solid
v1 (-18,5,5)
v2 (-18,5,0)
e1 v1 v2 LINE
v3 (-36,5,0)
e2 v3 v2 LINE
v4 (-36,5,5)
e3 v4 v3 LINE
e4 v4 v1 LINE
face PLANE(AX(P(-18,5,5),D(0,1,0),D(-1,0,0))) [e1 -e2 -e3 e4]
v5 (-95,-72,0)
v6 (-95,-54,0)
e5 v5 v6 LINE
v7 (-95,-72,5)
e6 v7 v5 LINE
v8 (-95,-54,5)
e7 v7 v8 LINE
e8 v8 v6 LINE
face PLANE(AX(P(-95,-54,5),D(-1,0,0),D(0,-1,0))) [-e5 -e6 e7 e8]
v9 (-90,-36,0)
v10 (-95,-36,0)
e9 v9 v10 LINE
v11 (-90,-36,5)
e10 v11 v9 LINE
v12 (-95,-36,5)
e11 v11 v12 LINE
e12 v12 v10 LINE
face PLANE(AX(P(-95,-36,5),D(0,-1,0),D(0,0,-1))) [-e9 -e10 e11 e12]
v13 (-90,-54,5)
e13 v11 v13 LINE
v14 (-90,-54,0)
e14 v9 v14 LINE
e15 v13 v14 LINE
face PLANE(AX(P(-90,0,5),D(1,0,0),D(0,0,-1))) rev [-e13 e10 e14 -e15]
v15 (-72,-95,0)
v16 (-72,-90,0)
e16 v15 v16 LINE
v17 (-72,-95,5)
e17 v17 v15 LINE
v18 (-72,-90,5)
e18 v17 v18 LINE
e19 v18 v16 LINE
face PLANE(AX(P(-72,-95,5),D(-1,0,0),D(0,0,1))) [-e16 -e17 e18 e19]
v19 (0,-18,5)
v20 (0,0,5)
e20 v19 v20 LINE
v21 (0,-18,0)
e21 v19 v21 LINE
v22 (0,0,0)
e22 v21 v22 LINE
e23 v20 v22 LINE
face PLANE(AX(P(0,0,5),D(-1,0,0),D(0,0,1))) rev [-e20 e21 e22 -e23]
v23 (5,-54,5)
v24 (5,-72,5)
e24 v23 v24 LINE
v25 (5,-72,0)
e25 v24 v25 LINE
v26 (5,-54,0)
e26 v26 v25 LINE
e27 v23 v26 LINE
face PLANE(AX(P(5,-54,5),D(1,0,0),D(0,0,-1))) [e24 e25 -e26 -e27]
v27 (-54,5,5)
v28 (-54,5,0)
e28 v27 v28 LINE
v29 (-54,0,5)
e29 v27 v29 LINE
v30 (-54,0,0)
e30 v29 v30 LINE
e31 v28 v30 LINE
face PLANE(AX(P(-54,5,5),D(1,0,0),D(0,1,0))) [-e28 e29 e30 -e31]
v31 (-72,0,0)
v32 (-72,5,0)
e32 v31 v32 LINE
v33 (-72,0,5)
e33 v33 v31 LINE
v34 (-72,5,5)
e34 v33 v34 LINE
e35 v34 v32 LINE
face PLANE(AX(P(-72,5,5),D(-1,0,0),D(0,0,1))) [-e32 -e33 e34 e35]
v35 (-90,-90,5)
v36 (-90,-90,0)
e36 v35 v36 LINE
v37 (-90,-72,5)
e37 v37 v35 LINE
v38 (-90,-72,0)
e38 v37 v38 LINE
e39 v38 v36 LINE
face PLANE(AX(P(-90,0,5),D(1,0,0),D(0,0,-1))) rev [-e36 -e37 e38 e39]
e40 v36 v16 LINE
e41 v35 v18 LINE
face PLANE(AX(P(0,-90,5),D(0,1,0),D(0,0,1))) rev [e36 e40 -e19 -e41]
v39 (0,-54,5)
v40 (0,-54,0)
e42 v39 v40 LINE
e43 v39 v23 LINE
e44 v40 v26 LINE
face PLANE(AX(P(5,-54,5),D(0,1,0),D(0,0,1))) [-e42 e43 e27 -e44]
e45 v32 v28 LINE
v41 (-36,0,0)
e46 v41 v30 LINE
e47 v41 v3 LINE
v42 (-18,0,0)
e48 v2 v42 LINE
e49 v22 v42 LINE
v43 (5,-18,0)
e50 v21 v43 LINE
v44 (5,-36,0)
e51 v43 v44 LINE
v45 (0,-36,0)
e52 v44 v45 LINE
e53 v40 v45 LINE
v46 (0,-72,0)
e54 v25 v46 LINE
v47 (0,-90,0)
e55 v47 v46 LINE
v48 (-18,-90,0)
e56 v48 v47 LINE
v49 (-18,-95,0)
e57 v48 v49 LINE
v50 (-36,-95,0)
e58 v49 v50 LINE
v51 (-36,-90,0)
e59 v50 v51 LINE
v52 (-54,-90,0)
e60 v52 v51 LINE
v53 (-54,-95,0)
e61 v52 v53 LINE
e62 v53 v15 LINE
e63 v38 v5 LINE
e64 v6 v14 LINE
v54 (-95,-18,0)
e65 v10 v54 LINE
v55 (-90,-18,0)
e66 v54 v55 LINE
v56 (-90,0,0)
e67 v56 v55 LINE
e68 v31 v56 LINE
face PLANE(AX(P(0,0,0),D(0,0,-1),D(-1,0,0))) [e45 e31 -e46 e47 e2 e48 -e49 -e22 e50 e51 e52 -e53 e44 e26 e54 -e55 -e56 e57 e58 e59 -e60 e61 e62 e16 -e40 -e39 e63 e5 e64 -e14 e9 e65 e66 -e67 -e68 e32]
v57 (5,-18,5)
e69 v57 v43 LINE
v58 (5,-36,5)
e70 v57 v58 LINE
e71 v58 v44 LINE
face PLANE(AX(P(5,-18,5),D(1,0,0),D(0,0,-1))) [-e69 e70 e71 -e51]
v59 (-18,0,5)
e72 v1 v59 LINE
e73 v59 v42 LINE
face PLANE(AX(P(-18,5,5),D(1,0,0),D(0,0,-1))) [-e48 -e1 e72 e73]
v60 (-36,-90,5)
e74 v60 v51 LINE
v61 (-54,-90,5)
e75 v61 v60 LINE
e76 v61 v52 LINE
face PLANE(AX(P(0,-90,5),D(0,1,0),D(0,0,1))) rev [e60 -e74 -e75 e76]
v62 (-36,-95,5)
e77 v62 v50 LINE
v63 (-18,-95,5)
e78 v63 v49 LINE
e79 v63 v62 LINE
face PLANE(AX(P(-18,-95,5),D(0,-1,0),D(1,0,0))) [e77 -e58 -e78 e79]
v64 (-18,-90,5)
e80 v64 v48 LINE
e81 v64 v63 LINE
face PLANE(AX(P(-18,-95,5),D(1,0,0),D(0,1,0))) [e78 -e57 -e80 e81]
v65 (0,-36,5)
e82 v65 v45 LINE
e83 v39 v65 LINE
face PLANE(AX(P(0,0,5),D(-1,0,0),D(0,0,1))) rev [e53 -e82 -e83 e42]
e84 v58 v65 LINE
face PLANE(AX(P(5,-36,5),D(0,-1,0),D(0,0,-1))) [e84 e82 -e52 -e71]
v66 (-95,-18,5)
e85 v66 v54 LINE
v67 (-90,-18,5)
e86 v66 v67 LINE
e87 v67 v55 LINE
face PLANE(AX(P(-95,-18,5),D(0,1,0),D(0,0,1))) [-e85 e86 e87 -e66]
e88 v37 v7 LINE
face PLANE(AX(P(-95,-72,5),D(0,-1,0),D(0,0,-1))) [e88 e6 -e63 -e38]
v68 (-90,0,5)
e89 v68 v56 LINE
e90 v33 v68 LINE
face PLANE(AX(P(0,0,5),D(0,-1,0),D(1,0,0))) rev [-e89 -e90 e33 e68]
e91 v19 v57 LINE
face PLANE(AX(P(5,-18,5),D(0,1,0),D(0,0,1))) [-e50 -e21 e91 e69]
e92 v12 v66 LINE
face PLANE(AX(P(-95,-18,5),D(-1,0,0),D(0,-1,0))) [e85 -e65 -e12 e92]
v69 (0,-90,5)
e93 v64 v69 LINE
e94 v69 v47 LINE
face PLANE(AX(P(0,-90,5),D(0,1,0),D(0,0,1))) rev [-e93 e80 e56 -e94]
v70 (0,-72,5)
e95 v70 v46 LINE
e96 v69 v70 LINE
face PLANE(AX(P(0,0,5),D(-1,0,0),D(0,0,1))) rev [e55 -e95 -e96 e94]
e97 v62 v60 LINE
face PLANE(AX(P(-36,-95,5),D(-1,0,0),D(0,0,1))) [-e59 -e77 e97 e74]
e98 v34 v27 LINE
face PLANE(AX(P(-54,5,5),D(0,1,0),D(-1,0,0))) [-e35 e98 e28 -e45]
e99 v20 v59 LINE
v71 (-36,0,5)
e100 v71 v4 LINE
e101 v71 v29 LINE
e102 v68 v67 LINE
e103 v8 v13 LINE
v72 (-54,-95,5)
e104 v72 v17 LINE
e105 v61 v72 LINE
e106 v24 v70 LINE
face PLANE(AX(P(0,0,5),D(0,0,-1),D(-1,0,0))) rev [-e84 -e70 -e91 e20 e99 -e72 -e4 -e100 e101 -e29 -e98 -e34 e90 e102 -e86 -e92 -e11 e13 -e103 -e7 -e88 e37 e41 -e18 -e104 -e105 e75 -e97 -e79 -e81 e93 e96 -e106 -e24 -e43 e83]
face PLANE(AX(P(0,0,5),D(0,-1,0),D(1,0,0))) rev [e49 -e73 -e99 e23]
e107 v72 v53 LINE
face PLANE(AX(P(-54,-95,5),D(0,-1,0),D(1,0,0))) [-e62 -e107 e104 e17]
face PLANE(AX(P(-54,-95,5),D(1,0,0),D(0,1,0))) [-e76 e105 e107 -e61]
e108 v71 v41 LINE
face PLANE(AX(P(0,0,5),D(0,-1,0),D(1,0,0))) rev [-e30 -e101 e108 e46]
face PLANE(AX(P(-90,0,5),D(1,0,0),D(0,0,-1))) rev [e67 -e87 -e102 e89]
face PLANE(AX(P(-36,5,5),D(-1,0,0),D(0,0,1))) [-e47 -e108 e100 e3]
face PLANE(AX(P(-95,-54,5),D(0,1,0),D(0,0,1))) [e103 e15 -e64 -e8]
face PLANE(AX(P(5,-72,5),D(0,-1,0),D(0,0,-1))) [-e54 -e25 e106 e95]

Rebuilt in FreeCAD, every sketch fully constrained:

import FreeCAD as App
import Part
import Sketcher


def add_polygon(sketch, points):
    """Adds a closed chain of lines whose ends are joined by coincident constraints."""
    first, n = sketch.GeometryCount, len(points)
    for a, b in zip(points, points[1:] + points[:1]):
        sketch.addGeometry(Part.LineSegment(App.Vector(*a, 0), App.Vector(*b, 0)), False)
    for i in range(n):
        sketch.addConstraint(Sketcher.Constraint("Coincident", first + i, 2, first + (i + 1) % n, 1))

doc = App.newDocument("Part")
body = doc.addObject("PartDesign::Body", "Body")

sketch1 = body.newObject("Sketcher::SketchObject", "Sketch")
sketch1.AttachmentSupport = (doc.getObject("XY_Plane"), [""])
sketch1.MapMode = "FlatFace"
add_polygon(sketch1, [(-90, 0), (-90, -90), (0, -90), (0, 0)])
sketch1.addConstraint(Sketcher.Constraint("Vertical", 0))
sketch1.addConstraint(Sketcher.Constraint("Horizontal", 1))
sketch1.addConstraint(Sketcher.Constraint("Vertical", 2))
sketch1.addConstraint(Sketcher.Constraint("Horizontal", 3))
sketch1.addConstraint(Sketcher.Constraint("Coincident", 2, 2, -1, 1))
sketch1.addConstraint(Sketcher.Constraint("Equal", 3, 0))
sketch1.addConstraint(Sketcher.Constraint("DistanceX", 1, 1, 1, 2, 90.0))
pad1 = body.newObject("PartDesign::Pad", "Pad")
pad1.Profile = sketch1
pad1.Length = 5

sketch2 = body.newObject("Sketcher::SketchObject", "Sketch001")
sketch2.AttachmentSupport = (doc.getObject("XY_Plane"), [""])
sketch2.MapMode = "FlatFace"
add_polygon(sketch2, [(5, -18), (5, -36), (0, -36), (0, -18)])
add_polygon(sketch2, [(5, -54), (5, -72), (0, -72), (0, -54)])
add_polygon(sketch2, [(-90, -54), (-90, -72), (-95, -72), (-95, -54)])
add_polygon(sketch2, [(-90, -18), (-90, -36), (-95, -36), (-95, -18)])
sketch2.addConstraint(Sketcher.Constraint("Vertical", 0))
sketch2.addConstraint(Sketcher.Constraint("Horizontal", 1))
sketch2.addConstraint(Sketcher.Constraint("Vertical", 2))
sketch2.addConstraint(Sketcher.Constraint("Horizontal", 3))
sketch2.addConstraint(Sketcher.Constraint("Vertical", 4))
sketch2.addConstraint(Sketcher.Constraint("Horizontal", 5))
sketch2.addConstraint(Sketcher.Constraint("Vertical", 6))
sketch2.addConstraint(Sketcher.Constraint("Horizontal", 7))
sketch2.addConstraint(Sketcher.Constraint("Vertical", 8))
sketch2.addConstraint(Sketcher.Constraint("Horizontal", 9))
sketch2.addConstraint(Sketcher.Constraint("Vertical", 10))
sketch2.addConstraint(Sketcher.Constraint("Horizontal", 11))
sketch2.addConstraint(Sketcher.Constraint("Vertical", 12))
sketch2.addConstraint(Sketcher.Constraint("Horizontal", 13))
sketch2.addConstraint(Sketcher.Constraint("Vertical", 14))
sketch2.addConstraint(Sketcher.Constraint("Horizontal", 15))
sketch2.addConstraint(Sketcher.Constraint("PointOnObject", 1, 2, -2))
sketch2.addConstraint(Sketcher.Constraint("PointOnObject", 5, 2, -2))
sketch2.addConstraint(Sketcher.Constraint("Horizontal", 5, 2, 8, 2))
sketch2.addConstraint(Sketcher.Constraint("Horizontal", 7, 2, 10, 2))
sketch2.addConstraint(Sketcher.Constraint("Horizontal", 1, 2, 12, 2))
sketch2.addConstraint(Sketcher.Constraint("Horizontal", 3, 2, 14, 2))
sketch2.addConstraint(Sketcher.Constraint("Vertical", 3, 2, 4, 2))
sketch2.addConstraint(Sketcher.Constraint("Vertical", 11, 2, 12, 2))
sketch2.addConstraint(Sketcher.Constraint("Vertical", 10, 2, 13, 2))
sketch2.addConstraint(Sketcher.Constraint("Equal", 7, 9))
sketch2.addConstraint(Sketcher.Constraint("Equal", 2, 4))
sketch2.addConstraint(Sketcher.Constraint("DistanceX", 1, 2, 1, 1, 5.0))
sketch2.addConstraint(Sketcher.Constraint("DistanceY", 0, 2, 0, 1, 18.0))
sketch2.addConstraint(Sketcher.Constraint("DistanceY", 0, 2, -1, 1, 36.0))
sketch2.addConstraint(Sketcher.Constraint("DistanceY", 4, 2, -1, 1, 72.0))
sketch2.addConstraint(Sketcher.Constraint("DistanceX", 8, 2, -1, 1, 90.0))
pad2 = body.newObject("PartDesign::Pad", "Pad001")
pad2.Profile = sketch2
pad2.Length = 5

sketch3 = body.newObject("Sketcher::SketchObject", "Sketch002")
sketch3.AttachmentSupport = (doc.getObject("XY_Plane"), [""])
sketch3.MapMode = "FlatFace"
add_polygon(sketch3, [(-18, 5), (-18, 0), (-36, 0), (-36, 5)])
add_polygon(sketch3, [(-54, 5), (-54, 0), (-72, 0), (-72, 5)])
add_polygon(sketch3, [(-54, -90), (-54, -95), (-72, -95), (-72, -90)])
add_polygon(sketch3, [(-18, -90), (-18, -95), (-36, -95), (-36, -90)])
sketch3.addConstraint(Sketcher.Constraint("Vertical", 0))
sketch3.addConstraint(Sketcher.Constraint("Horizontal", 1))
sketch3.addConstraint(Sketcher.Constraint("Vertical", 2))
sketch3.addConstraint(Sketcher.Constraint("Horizontal", 3))
sketch3.addConstraint(Sketcher.Constraint("Vertical", 4))
sketch3.addConstraint(Sketcher.Constraint("Horizontal", 5))
sketch3.addConstraint(Sketcher.Constraint("Vertical", 6))
sketch3.addConstraint(Sketcher.Constraint("Horizontal", 7))
sketch3.addConstraint(Sketcher.Constraint("Vertical", 8))
sketch3.addConstraint(Sketcher.Constraint("Horizontal", 9))
sketch3.addConstraint(Sketcher.Constraint("Vertical", 10))
sketch3.addConstraint(Sketcher.Constraint("Horizontal", 11))
sketch3.addConstraint(Sketcher.Constraint("Vertical", 12))
sketch3.addConstraint(Sketcher.Constraint("Horizontal", 13))
sketch3.addConstraint(Sketcher.Constraint("Vertical", 14))
sketch3.addConstraint(Sketcher.Constraint("Horizontal", 15))
sketch3.addConstraint(Sketcher.Constraint("PointOnObject", 0, 2, -1))
sketch3.addConstraint(Sketcher.Constraint("PointOnObject", 4, 2, -1))
sketch3.addConstraint(Sketcher.Constraint("Horizontal", 3, 2, 6, 2))
sketch3.addConstraint(Sketcher.Constraint("Horizontal", 9, 2, 12, 2))
sketch3.addConstraint(Sketcher.Constraint("Horizontal", 11, 2, 14, 2))
sketch3.addConstraint(Sketcher.Constraint("Vertical", 7, 2, 8, 2))
sketch3.addConstraint(Sketcher.Constraint("Vertical", 6, 2, 9, 2))
sketch3.addConstraint(Sketcher.Constraint("Vertical", 3, 2, 12, 2))
sketch3.addConstraint(Sketcher.Constraint("Vertical", 2, 2, 13, 2))
sketch3.addConstraint(Sketcher.Constraint("Equal", 3, 5))
sketch3.addConstraint(Sketcher.Constraint("Equal", 6, 8))
sketch3.addConstraint(Sketcher.Constraint("DistanceX", 1, 2, 1, 1, 18.0))
sketch3.addConstraint(Sketcher.Constraint("DistanceY", 0, 2, 0, 1, 5.0))
sketch3.addConstraint(Sketcher.Constraint("DistanceX", 0, 2, -1, 1, 18.0))
sketch3.addConstraint(Sketcher.Constraint("DistanceX", 4, 2, -1, 1, 54.0))
sketch3.addConstraint(Sketcher.Constraint("DistanceY", 8, 2, -1, 1, 95.0))
pad3 = body.newObject("PartDesign::Pad", "Pad002")
pad3.Profile = sketch3
pad3.Length = 5

doc.recompute()
